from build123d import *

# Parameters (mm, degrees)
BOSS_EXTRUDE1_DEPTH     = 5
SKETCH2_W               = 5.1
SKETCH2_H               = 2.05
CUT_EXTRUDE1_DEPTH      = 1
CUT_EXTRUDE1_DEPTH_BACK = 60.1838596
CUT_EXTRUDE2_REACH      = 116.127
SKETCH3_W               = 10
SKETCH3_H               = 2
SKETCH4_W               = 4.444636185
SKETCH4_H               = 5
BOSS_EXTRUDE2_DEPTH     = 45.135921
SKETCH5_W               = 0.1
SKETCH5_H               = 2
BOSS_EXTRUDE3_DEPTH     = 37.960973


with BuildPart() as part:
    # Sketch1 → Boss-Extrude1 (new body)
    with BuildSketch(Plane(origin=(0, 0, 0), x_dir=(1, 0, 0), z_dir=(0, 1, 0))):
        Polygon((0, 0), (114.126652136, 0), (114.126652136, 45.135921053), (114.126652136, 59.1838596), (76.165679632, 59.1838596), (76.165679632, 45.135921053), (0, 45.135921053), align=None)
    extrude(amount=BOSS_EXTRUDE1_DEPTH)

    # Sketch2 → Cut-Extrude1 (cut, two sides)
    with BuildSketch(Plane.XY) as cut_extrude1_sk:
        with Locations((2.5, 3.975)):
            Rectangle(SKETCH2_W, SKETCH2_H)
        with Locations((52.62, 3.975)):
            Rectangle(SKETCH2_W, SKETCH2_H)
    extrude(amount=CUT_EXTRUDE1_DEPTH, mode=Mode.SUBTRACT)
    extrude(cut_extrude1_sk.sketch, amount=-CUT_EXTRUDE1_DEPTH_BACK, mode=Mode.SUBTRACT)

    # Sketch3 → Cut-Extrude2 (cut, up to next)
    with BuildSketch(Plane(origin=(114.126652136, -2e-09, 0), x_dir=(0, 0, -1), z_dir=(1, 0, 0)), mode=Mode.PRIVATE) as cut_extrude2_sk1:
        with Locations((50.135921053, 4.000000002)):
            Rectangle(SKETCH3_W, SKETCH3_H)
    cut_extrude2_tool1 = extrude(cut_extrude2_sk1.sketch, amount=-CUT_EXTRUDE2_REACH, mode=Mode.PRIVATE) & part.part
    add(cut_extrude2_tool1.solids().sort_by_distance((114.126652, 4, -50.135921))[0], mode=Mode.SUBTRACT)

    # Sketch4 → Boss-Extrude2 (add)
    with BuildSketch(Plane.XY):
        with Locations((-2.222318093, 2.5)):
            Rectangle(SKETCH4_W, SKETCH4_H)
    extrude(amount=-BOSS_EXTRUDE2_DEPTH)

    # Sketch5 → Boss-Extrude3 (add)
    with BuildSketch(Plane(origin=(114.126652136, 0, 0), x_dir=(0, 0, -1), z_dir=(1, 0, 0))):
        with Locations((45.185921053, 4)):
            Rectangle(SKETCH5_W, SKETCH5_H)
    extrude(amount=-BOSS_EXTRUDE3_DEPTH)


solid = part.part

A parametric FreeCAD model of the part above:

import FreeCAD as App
import Part
import Sketcher
from FreeCAD import Vector

doc = App.newDocument("Part")
body = doc.addObject("PartDesign::Body", "Body")

# Sketch on XZ plane
sketch1 = body.newObject("Sketcher::SketchObject", "Sketch")
sketch1.AttachmentSupport = (doc.getObject("XZ_Plane"), [""])
sketch1.MapMode = "FlatFace"
sketch1.addGeometry([
    Part.LineSegment(Vector(0, 0, 0), Vector(114.126652, 0, 0)),  # 0
    Part.LineSegment(Vector(114.126652, 0, 0), Vector(114.126652, -59.18386, 0)),  # 1
    Part.LineSegment(Vector(114.126652, -59.18386, 0), Vector(76.16568, -59.18386, 0)),  # 2
    Part.LineSegment(Vector(76.16568, -59.18386, 0), Vector(76.16568, -45.135921, 0)),  # 3
    Part.LineSegment(Vector(76.16568, -45.135921, 0), Vector(0, -45.135921, 0)),  # 4
    Part.LineSegment(Vector(0, -45.135921, 0), Vector(0, 0, 0)),  # 5
], False)
sketch1.addConstraint([
    Sketcher.Constraint("Coincident", 0, 2, 1, 1),
    Sketcher.Constraint("Coincident", 1, 2, 2, 1),
    Sketcher.Constraint("Coincident", 2, 2, 3, 1),
    Sketcher.Constraint("Coincident", 3, 2, 4, 1),
    Sketcher.Constraint("Coincident", 4, 2, 5, 1),
    Sketcher.Constraint("Coincident", 5, 2, 0, 1),
    Sketcher.Constraint("Horizontal", 0),
    Sketcher.Constraint("Vertical", 1),
    Sketcher.Constraint("Horizontal", 2),
    Sketcher.Constraint("Vertical", 3),
    Sketcher.Constraint("Horizontal", 4),
    Sketcher.Constraint("Vertical", 5),
    Sketcher.Constraint("Coincident", 5, 2, -1, 1),
    Sketcher.Constraint("DistanceX", 4, 2, 4, 1, 76.16568),
    Sketcher.Constraint("DistanceY", 1, 2, 1, 1, 59.18386),
    Sketcher.Constraint("DistanceY", 3, 1, 3, 2, 14.047939),
    Sketcher.Constraint("DistanceX", 0, 1, 0, 2, 114.126652),
])
pad1 = body.newObject("PartDesign::Pad", "Pad")
pad1.Profile = sketch1
pad1.Length = 5
pad1.Reversed = True

# Sketch on XY plane
sketch2 = body.newObject("Sketcher::SketchObject", "Sketch001")
sketch2.AttachmentSupport = (doc.getObject("XY_Plane"), [""])
sketch2.MapMode = "FlatFace"
sketch2.addGeometry([
    Part.LineSegment(Vector(-0.05, 5, 0), Vector(-0.05, 2.95, 0)),  # 0
    Part.LineSegment(Vector(-0.05, 2.95, 0), Vector(5.05, 2.95, 0)),  # 1
    Part.LineSegment(Vector(5.05, 2.95, 0), Vector(5.05, 5, 0)),  # 2
    Part.LineSegment(Vector(5.05, 5, 0), Vector(-0.05, 5, 0)),  # 3
    Part.LineSegment(Vector(50.07, 5, 0), Vector(50.07, 2.95, 0)),  # 4
    Part.LineSegment(Vector(50.07, 2.95, 0), Vector(55.17, 2.95, 0)),  # 5
    Part.LineSegment(Vector(55.17, 2.95, 0), Vector(55.17, 5, 0)),  # 6
    Part.LineSegment(Vector(55.17, 5, 0), Vector(50.07, 5, 0)),  # 7
], False)
sketch2.addConstraint([
    Sketcher.Constraint("Coincident", 0, 2, 1, 1),
    Sketcher.Constraint("Coincident", 1, 2, 2, 1),
    Sketcher.Constraint("Coincident", 2, 2, 3, 1),
    Sketcher.Constraint("Coincident", 3, 2, 0, 1),
    Sketcher.Constraint("Coincident", 4, 2, 5, 1),
    Sketcher.Constraint("Coincident", 5, 2, 6, 1),
    Sketcher.Constraint("Coincident", 6, 2, 7, 1),
    Sketcher.Constraint("Coincident", 7, 2, 4, 1),
    Sketcher.Constraint("Vertical", 0),
    Sketcher.Constraint("Horizontal", 1),
    Sketcher.Constraint("Vertical", 2),
    Sketcher.Constraint("Horizontal", 3),
    Sketcher.Constraint("Vertical", 4),
    Sketcher.Constraint("Horizontal", 5),
    Sketcher.Constraint("Vertical", 6),
    Sketcher.Constraint("Horizontal", 7),
    Sketcher.Constraint("Horizontal", 1, 2, 4, 2),
    Sketcher.Constraint("Horizontal", 3, 2, 6, 2),
    Sketcher.Constraint("Equal", 3, 5),
    Sketcher.Constraint("DistanceX", 1, 1, 1, 2, 5.1),
    Sketcher.Constraint("DistanceY", -1, 1, 2, 2, 5.0),
    Sketcher.Constraint("DistanceY", 0, 2, 0, 1, 2.05),
    Sketcher.Constraint("DistanceX", 0, 2, -1, 1, 0.05),
    Sketcher.Constraint("DistanceX", -1, 1, 4, 2, 50.07),
])
pocket1 = body.newObject("PartDesign::Pocket", "Pocket")
pocket1.Profile = sketch2
pocket1.Type = "ThroughAll"
pocket1.Midplane = True

# Sketch on YZ plane
sketch3 = body.newObject("Sketcher::SketchObject", "Sketch002")
sketch3.AttachmentSupport = (doc.getObject("YZ_Plane"), [""])
sketch3.MapMode = "FlatFace"
sketch3.AttachmentOffset = App.Placement(Vector(0, 0, 114.126652), App.Rotation())
sketch3.addGeometry([
    Part.LineSegment(Vector(5, -45.135921, 0), Vector(3, -45.135921, 0)),
    Part.LineSegment(Vector(3, -45.135921, 0), Vector(3, -55.135921, 0)),
    Part.LineSegment(Vector(3, -55.135921, 0), Vector(5, -55.135921, 0)),
    Part.LineSegment(Vector(5, -55.135921, 0), Vector(5, -45.135921, 0)),
], False)
sketch3.addConstraint([
    Sketcher.Constraint("Coincident", 0, 2, 1, 1),
    Sketcher.Constraint("Coincident", 1, 2, 2, 1),
    Sketcher.Constraint("Coincident", 2, 2, 3, 1),
    Sketcher.Constraint("Coincident", 3, 2, 0, 1),
    Sketcher.Constraint("Horizontal", 0),
    Sketcher.Constraint("Vertical", 1),
    Sketcher.Constraint("Horizontal", 2),
    Sketcher.Constraint("Vertical", 3),
    Sketcher.Constraint("DistanceX", 0, 2, 0, 1, 2.0),
    Sketcher.Constraint("DistanceY", 1, 2, 1, 1, 10.0),
    Sketcher.Constraint("DistanceX", -1, 1, 0, 2, 3.0),
    Sketcher.Constraint("DistanceY", 0, 2, -1, 1, 45.135921),
])
pocket2 = body.newObject("PartDesign::Pocket", "Pocket001")
pocket2.Profile = sketch3
pocket2.Type = "UpToFirst"

# Sketch on XY plane
sketch4 = body.newObject("Sketcher::SketchObject", "Sketch003")
sketch4.AttachmentSupport = (doc.getObject("XY_Plane"), [""])
sketch4.MapMode = "FlatFace"
sketch4.addGeometry([
    Part.LineSegment(Vector(-4.444636, 5, 0), Vector(-4.444636, 0, 0)),
    Part.LineSegment(Vector(-4.444636, 0, 0), Vector(0, 0, 0)),
    Part.LineSegment(Vector(0, 0, 0), Vector(0, 5, 0)),
    Part.LineSegment(Vector(0, 5, 0), Vector(-4.444636, 5, 0)),
], False)
sketch4.addConstraint([
    Sketcher.Constraint("Coincident", 0, 2, 1, 1),
    Sketcher.Constraint("Coincident", 1, 2, 2, 1),
    Sketcher.Constraint("Coincident", 2, 2, 3, 1),
    Sketcher.Constraint("Coincident", 3, 2, 0, 1),
    Sketcher.Constraint("Vertical", 0),
    Sketcher.Constraint("Horizontal", 1),
    Sketcher.Constraint("Vertical", 2),
    Sketcher.Constraint("Horizontal", 3),
    Sketcher.Constraint("Coincident", 1, 2, -1, 1),
    Sketcher.Constraint("DistanceY", 0, 2, 0, 1, 5.0),
    Sketcher.Constraint("DistanceX", 1, 1, 1, 2, 4.444636),
])
pad2 = body.newObject("PartDesign::Pad", "Pad001")
pad2.Profile = sketch4
pad2.Length = 45.135921
pad2.Reversed = True

# Sketch on YZ plane
sketch5 = body.newObject("Sketcher::SketchObject", "Sketch004")
sketch5.AttachmentSupport = (doc.getObject("YZ_Plane"), [""])
sketch5.MapMode = "FlatFace"
sketch5.AttachmentOffset = App.Placement(Vector(0, 0, 114.126652), App.Rotation())
sketch5.addGeometry([
    Part.LineSegment(Vector(5, -45.135921, 0), Vector(3, -45.135921, 0)),
    Part.LineSegment(Vector(3, -45.135921, 0), Vector(3, -45.235921, 0)),
    Part.LineSegment(Vector(3, -45.235921, 0), Vector(5, -45.235921, 0)),
    Part.LineSegment(Vector(5, -45.235921, 0), Vector(5, -45.135921, 0)),
], False)
sketch5.addConstraint([
    Sketcher.Constraint("Coincident", 0, 2, 1, 1),
    Sketcher.Constraint("Coincident", 1, 2, 2, 1),
    Sketcher.Constraint("Coincident", 2, 2, 3, 1),
    Sketcher.Constraint("Coincident", 3, 2, 0, 1),
    Sketcher.Constraint("Horizontal", 0),
    Sketcher.Constraint("Vertical", 1),
    Sketcher.Constraint("Horizontal", 2),
    Sketcher.Constraint("Vertical", 3),
    Sketcher.Constraint("DistanceX", 0, 2, 0, 1, 2.0),
    Sketcher.Constraint("DistanceY", 1, 2, 1, 1, 0.1),
    Sketcher.Constraint("DistanceX", -1, 1, 0, 2, 3.0),
    Sketcher.Constraint("DistanceY", 0, 2, -1, 1, 45.135921),
])
pad3 = body.newObject("PartDesign::Pad", "Pad002")
pad3.Profile = sketch5
pad3.Length = 37.960973
pad3.Reversed = True

doc.recompute()
